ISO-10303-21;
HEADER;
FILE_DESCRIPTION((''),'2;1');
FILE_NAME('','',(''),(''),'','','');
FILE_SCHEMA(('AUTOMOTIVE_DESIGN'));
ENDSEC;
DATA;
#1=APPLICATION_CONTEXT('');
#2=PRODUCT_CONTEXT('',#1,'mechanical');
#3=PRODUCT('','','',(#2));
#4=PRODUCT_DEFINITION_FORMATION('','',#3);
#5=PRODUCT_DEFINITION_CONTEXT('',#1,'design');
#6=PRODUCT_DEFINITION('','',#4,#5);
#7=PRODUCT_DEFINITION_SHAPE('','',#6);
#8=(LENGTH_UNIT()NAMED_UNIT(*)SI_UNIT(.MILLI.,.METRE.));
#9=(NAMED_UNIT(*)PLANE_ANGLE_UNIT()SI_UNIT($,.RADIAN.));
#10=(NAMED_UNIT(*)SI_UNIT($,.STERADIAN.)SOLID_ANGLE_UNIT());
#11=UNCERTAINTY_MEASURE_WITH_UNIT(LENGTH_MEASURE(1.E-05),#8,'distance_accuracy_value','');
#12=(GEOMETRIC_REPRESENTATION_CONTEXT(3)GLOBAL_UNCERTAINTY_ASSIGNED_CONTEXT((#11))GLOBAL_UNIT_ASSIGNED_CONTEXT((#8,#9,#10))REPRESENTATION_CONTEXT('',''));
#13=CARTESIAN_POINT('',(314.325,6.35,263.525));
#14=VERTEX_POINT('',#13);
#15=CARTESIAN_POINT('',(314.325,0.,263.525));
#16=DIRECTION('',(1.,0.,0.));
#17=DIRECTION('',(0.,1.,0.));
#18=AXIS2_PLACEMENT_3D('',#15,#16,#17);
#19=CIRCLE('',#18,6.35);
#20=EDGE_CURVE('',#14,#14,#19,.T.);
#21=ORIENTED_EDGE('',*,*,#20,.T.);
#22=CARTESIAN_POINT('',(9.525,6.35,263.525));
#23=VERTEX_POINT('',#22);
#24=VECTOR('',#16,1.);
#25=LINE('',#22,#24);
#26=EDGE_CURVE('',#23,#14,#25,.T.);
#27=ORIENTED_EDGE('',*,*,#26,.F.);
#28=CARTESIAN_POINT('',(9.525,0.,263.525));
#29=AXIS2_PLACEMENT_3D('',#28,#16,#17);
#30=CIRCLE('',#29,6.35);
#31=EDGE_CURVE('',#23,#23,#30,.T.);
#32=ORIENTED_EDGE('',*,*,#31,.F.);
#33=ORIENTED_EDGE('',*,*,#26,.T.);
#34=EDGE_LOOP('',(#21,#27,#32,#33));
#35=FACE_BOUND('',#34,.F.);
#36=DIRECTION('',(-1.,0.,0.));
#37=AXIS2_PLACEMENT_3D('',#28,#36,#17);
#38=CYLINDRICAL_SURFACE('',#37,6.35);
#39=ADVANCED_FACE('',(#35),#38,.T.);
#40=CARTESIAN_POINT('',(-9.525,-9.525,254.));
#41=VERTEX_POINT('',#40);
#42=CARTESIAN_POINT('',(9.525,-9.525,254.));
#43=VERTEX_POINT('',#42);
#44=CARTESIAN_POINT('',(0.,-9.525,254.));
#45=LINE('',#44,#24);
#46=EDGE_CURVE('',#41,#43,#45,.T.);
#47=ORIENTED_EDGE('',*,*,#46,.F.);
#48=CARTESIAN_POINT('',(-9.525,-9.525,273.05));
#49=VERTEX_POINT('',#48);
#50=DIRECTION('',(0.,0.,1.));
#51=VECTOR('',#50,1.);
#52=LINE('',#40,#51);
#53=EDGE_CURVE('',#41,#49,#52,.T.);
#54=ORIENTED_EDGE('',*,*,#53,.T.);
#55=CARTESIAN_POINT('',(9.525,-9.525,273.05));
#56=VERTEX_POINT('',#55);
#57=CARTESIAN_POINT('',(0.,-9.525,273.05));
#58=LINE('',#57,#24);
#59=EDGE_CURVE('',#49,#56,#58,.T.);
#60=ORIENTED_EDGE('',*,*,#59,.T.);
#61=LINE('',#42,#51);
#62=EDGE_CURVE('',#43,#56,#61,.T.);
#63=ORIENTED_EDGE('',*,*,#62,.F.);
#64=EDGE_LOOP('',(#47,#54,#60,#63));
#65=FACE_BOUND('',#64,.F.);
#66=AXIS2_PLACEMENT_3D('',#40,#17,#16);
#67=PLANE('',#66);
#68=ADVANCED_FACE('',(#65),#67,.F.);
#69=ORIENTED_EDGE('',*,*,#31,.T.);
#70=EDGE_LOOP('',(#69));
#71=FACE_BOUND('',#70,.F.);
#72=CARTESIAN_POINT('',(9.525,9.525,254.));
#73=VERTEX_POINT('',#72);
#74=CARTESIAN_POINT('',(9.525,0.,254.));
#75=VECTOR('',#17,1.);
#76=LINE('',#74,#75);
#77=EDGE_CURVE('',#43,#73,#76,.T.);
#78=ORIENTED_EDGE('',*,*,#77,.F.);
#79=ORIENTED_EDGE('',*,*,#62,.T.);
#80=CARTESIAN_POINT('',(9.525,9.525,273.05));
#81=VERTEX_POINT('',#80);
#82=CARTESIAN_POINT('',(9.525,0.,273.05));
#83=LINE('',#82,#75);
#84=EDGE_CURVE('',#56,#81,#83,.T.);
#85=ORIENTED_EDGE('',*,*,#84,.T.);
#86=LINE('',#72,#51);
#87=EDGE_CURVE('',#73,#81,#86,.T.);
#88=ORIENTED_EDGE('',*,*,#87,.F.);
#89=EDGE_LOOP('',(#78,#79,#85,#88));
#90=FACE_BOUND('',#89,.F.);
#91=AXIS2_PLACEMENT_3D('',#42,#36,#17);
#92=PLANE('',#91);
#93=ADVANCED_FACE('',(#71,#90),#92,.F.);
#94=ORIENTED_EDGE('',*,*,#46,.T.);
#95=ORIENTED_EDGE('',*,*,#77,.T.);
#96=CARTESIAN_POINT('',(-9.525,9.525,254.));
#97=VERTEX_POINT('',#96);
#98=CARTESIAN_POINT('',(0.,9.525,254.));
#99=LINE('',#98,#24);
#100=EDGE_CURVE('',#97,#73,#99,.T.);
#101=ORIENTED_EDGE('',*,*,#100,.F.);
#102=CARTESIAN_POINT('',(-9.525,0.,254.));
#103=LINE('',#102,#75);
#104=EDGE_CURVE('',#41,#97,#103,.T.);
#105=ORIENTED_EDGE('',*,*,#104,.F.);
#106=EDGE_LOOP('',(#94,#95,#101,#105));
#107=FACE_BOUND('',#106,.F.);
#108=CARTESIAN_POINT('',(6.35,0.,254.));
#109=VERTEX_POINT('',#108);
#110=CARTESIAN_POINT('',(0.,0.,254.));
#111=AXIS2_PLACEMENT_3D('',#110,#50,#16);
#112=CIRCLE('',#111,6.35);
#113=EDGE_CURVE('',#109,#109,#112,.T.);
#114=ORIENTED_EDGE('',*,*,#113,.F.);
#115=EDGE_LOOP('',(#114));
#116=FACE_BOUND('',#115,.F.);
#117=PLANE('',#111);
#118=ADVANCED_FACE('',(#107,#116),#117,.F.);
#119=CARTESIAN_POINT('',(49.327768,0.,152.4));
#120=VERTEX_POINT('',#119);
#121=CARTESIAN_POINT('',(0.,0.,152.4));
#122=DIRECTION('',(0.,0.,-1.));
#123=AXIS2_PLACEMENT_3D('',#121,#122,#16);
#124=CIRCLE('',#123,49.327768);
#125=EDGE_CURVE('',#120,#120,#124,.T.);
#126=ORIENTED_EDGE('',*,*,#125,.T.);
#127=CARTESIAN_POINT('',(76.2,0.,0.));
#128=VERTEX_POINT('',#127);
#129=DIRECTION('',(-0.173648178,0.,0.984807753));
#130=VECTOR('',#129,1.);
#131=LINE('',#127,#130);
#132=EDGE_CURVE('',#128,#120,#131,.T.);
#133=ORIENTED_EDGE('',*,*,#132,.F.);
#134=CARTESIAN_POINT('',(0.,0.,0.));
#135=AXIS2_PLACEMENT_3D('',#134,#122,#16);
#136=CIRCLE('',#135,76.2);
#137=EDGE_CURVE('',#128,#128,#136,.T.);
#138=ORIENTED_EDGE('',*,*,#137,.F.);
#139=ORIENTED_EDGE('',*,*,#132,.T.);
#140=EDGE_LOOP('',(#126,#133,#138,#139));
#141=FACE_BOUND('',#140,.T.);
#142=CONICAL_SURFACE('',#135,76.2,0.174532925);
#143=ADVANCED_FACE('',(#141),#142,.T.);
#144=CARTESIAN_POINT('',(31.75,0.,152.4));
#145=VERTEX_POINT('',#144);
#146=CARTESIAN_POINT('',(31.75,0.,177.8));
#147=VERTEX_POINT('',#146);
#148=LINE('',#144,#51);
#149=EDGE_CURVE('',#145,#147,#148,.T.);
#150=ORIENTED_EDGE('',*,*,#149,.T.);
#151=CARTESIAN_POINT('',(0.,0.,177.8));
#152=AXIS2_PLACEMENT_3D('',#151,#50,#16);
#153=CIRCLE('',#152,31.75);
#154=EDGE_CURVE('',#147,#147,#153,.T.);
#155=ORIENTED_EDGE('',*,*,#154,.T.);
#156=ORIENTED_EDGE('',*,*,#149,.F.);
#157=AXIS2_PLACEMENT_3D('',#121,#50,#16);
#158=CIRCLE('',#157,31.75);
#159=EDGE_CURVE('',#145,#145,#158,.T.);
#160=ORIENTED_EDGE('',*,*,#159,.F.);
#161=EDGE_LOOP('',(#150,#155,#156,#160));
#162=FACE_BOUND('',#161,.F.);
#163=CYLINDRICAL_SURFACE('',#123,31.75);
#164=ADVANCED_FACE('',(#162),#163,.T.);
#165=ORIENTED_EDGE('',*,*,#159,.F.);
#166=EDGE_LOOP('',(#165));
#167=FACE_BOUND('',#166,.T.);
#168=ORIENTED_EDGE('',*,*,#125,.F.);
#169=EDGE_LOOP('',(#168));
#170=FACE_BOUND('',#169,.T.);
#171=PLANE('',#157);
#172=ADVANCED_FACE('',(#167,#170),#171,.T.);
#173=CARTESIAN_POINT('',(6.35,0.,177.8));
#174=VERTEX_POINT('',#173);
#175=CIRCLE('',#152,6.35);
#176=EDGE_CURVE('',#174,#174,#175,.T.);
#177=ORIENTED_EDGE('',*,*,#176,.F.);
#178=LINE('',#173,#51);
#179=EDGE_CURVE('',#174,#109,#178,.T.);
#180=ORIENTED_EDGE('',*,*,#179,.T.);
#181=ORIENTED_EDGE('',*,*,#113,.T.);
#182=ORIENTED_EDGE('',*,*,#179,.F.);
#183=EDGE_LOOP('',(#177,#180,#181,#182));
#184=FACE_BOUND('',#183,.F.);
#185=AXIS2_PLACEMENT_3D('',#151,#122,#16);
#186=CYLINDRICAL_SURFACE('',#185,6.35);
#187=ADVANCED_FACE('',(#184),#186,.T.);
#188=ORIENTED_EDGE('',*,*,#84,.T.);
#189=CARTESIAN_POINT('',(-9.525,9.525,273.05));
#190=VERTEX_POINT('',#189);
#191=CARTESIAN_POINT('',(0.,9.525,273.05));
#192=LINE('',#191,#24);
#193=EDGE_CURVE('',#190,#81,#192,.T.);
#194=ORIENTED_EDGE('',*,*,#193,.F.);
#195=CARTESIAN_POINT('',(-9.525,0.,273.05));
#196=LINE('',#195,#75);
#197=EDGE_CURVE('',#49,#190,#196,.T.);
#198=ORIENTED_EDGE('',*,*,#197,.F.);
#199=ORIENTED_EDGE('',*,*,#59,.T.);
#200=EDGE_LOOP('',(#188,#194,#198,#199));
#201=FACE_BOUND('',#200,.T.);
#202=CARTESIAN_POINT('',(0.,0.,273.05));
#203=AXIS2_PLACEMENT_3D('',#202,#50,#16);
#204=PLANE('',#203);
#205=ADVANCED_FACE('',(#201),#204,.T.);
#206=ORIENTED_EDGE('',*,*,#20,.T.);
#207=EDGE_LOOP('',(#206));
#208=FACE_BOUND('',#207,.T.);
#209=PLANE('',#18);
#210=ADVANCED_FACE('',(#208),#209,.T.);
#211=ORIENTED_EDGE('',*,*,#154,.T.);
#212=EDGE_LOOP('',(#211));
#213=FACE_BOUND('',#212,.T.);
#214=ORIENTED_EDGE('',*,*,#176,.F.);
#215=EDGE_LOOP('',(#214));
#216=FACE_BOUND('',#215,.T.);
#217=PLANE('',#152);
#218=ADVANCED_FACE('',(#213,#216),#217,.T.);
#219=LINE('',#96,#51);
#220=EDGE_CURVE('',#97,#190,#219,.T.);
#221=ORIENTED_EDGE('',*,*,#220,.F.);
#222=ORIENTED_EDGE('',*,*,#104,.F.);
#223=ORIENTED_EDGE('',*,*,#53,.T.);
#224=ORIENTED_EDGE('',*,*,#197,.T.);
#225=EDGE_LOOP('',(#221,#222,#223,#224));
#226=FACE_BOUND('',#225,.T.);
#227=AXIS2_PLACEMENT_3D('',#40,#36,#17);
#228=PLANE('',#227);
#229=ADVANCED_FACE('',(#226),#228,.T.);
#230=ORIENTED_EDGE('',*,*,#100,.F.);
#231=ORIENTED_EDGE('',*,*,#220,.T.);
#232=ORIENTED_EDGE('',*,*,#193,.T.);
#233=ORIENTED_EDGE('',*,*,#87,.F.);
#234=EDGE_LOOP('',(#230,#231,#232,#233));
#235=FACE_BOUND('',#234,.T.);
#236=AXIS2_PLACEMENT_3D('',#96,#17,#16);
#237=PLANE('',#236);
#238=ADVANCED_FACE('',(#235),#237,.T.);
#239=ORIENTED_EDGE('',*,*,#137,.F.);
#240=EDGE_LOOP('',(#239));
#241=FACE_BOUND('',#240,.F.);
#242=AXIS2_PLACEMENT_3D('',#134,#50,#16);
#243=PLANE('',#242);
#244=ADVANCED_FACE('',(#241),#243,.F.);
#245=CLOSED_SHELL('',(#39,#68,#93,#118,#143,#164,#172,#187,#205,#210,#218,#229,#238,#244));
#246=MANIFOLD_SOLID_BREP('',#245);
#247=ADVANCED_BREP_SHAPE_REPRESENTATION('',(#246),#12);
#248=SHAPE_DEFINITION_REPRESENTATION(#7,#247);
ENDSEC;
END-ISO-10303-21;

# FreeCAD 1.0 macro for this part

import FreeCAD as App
import Part
import Sketcher

V = App.Vector
Q = App.Units.Quantity


def add_polygon(sketch, points):
    """Adds a closed chain of lines whose ends are joined by coincident constraints."""
    first, n = sketch.GeometryCount, len(points)
    for a, b in zip(points, points[1:] + points[:1]):
        sketch.addGeometry(Part.LineSegment(App.Vector(*a, 0), App.Vector(*b, 0)), False)
    for i in range(n):
        sketch.addConstraint(Sketcher.Constraint("Coincident", first + i, 2, first + (i + 1) % n, 1))

doc = App.newDocument("Part")
body = doc.addObject("PartDesign::Body", "Body")

sketch1 = body.newObject("Sketcher::SketchObject", "Sketch")
sketch1.AttachmentSupport = (doc.getObject("XY_Plane"), [""])
sketch1.MapMode = "FlatFace"
sketch1.addGeometry(Part.Circle(V(0, 0, 0), V(0, 0, 1), 76), False)
sketch1.addConstraint([
    Sketcher.Constraint("Coincident", 0, 3, -1, 1),
    Sketcher.Constraint("Diameter", 0, Q("6 in")),
])
pad1 = body.newObject("PartDesign::Pad", "Pad")
pad1.Profile = sketch1
pad1.Length = Q("6 in")
pad1.TaperAngle = -10

sketch2 = body.newObject("Sketcher::SketchObject", "Sketch001")
sketch2.AttachmentSupport = (doc.getObject("XY_Plane"), [""])
sketch2.MapMode = "FlatFace"
sketch2.AttachmentOffset = App.Placement(V(0, 0, 6 * 25.4), App.Rotation())
sketch2.addGeometry(Part.Circle(V(0, 0, 0), V(0, 0, 1), 32), False)
sketch2.addConstraint([
    Sketcher.Constraint("Coincident", 0, 3, -1, 1),
    Sketcher.Constraint("Diameter", 0, Q("2.5 in")),
])
pad2 = body.newObject("PartDesign::Pad", "Pad001")
pad2.Profile = sketch2
pad2.Length = Q("1 in")

sketch3 = body.newObject("Sketcher::SketchObject", "Sketch002")
sketch3.AttachmentSupport = (doc.getObject("XY_Plane"), [""])
sketch3.MapMode = "FlatFace"
sketch3.AttachmentOffset = App.Placement(V(0, 0, 7 * 25.4), App.Rotation())
sketch3.addGeometry(Part.Circle(V(0, 0, 0), V(0, 0, 1), 6), False)
sketch3.addConstraint([
    Sketcher.Constraint("Coincident", 0, 3, -1, 1),
    Sketcher.Constraint("Diameter", 0, Q("0.5 in")),
])
pad3 = body.newObject("PartDesign::Pad", "Pad002")
pad3.Profile = sketch3
pad3.Length = Q("3 in")

sketch4 = body.newObject("Sketcher::SketchObject", "Sketch003")
sketch4.AttachmentSupport = (doc.getObject("XY_Plane"), [""])
sketch4.MapMode = "FlatFace"
sketch4.AttachmentOffset = App.Placement(V(0, 0, 10 * 25.4), App.Rotation())
add_polygon(sketch4, [(-10, 10), (-10, -10), (10, -10), (10, 10)])
sketch4.addConstraint([
    Sketcher.Constraint("Vertical", 0),
    Sketcher.Constraint("Horizontal", 1),
    Sketcher.Constraint("Vertical", 2),
    Sketcher.Constraint("Horizontal", 3),
    Sketcher.Constraint("Symmetric", 0, 2, 2, 2, -1, 1),
    Sketcher.Constraint("Equal", 3, 0),
    Sketcher.Constraint("DistanceX", 1, 1, 1, 2, Q("0.75 in")),
])
pad4 = body.newObject("PartDesign::Pad", "Pad003")
pad4.Profile = sketch4
pad4.Length = Q("0.75 in")

sketch5 = body.newObject("Sketcher::SketchObject", "Sketch004")
sketch5.AttachmentSupport = (doc.getObject("YZ_Plane"), [""])
sketch5.MapMode = "FlatFace"
sketch5.AttachmentOffset = App.Placement(V(0, 0, 0.375 * 25.4), App.Rotation())
sketch5.addGeometry(Part.Circle(V(0, 264, 0), V(0, 0, 1), 6), False)
sketch5.addConstraint([
    Sketcher.Constraint("PointOnObject", 0, 3, -2),
    Sketcher.Constraint("Diameter", 0, Q("0.5 in")),
    Sketcher.Constraint("DistanceY", -1, 1, 0, 3, Q("10.375 in")),
])
pad5 = body.newObject("PartDesign::Pad", "Pad004")
pad5.Profile = sketch5
pad5.Length = Q("12 in")

doc.recompute()
